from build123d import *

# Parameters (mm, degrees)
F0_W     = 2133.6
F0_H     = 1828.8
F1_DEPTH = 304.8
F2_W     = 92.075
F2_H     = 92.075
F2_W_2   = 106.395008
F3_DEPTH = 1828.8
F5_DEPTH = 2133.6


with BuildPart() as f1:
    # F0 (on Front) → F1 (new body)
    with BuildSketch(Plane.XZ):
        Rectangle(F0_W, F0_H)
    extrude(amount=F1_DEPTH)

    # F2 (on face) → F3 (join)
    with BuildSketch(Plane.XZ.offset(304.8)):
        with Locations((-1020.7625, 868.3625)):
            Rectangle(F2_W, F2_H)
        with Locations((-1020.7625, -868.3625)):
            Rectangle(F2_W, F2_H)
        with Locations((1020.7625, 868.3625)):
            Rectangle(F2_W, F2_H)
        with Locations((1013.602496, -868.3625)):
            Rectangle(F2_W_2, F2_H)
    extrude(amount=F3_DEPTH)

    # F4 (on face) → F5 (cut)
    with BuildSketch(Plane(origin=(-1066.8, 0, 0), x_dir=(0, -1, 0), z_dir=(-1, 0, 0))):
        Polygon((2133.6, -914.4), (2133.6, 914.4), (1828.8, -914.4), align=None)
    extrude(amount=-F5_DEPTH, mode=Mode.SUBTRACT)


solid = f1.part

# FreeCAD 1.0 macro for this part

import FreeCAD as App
import Part
import Sketcher
Q = App.Units.Quantity

doc = App.newDocument("Part")
body = doc.addObject("PartDesign::Body", "Body")

# Sketch on XZ plane
sketch1 = doc.addObject("Sketcher::SketchObject", "Sketch")
body.addObject(sketch1)
sketch1.AttachmentSupport = (doc.XZ_Plane, [""])
sketch1.MapMode = "FlatFace"
sketch1.addGeometry(Part.LineSegment(App.Vector(-1067, 914, 0), App.Vector(-1067, -914, 0)), False)
sketch1.addGeometry(Part.LineSegment(App.Vector(-1067, -914, 0), App.Vector(1067, -914, 0)), False)
sketch1.addGeometry(Part.LineSegment(App.Vector(1067, -914, 0), App.Vector(1067, 914, 0)), False)
sketch1.addGeometry(Part.LineSegment(App.Vector(1067, 914, 0), App.Vector(-1067, 914, 0)), False)
sketch1.addConstraint(Sketcher.Constraint("Coincident", 0, 2, 1, 1))
sketch1.addConstraint(Sketcher.Constraint("Coincident", 1, 2, 2, 1))
sketch1.addConstraint(Sketcher.Constraint("Coincident", 2, 2, 3, 1))
sketch1.addConstraint(Sketcher.Constraint("Coincident", 3, 2, 0, 1))
sketch1.addConstraint(Sketcher.Constraint("Vertical", 0))
sketch1.addConstraint(Sketcher.Constraint("Horizontal", 1))
sketch1.addConstraint(Sketcher.Constraint("Vertical", 2))
sketch1.addConstraint(Sketcher.Constraint("Horizontal", 3))
sketch1.addConstraint(Sketcher.Constraint("Symmetric", 0, 2, 2, 2, -1, 1))
sketch1.addConstraint(Sketcher.Constraint("DistanceX", 1, 1, 1, 2, Q("84 in")))
sketch1.addConstraint(Sketcher.Constraint("DistanceY", 0, 2, 0, 1, Q("72 in")))
pad1 = doc.addObject("PartDesign::Pad", "Pad")
body.addObject(pad1)
pad1.Profile = sketch1
pad1.Length = Q("12 in")

# Sketch on XZ plane
sketch2 = doc.addObject("Sketcher::SketchObject", "Sketch001")
body.addObject(sketch2)
sketch2.AttachmentSupport = (doc.XZ_Plane, [""])
sketch2.MapMode = "FlatFace"
sketch2.AttachmentOffset = App.Placement(App.Vector(0, 0, 12 * 25.4), App.Rotation())
sketch2.addGeometry(Part.LineSegment(App.Vector(-1067, 914, 0), App.Vector(-1067, 822, 0)), False)
sketch2.addGeometry(Part.LineSegment(App.Vector(-1067, 822, 0), App.Vector(-975, 822, 0)), False)
sketch2.addGeometry(Part.LineSegment(App.Vector(-975, 822, 0), App.Vector(-975, 914, 0)), False)
sketch2.addGeometry(Part.LineSegment(App.Vector(-975, 914, 0), App.Vector(-1067, 914, 0)), False)
sketch2.addGeometry(Part.LineSegment(App.Vector(-1067, -822, 0), App.Vector(-1067, -914, 0)), False)
sketch2.addGeometry(Part.LineSegment(App.Vector(-1067, -914, 0), App.Vector(-975, -914, 0)), False)
sketch2.addGeometry(Part.LineSegment(App.Vector(-975, -914, 0), App.Vector(-975, -822, 0)), False)
sketch2.addGeometry(Part.LineSegment(App.Vector(-975, -822, 0), App.Vector(-1067, -822, 0)), False)
sketch2.addGeometry(Part.LineSegment(App.Vector(975, 914, 0), App.Vector(975, 822, 0)), False)
sketch2.addGeometry(Part.LineSegment(App.Vector(975, 822, 0), App.Vector(1067, 822, 0)), False)
sketch2.addGeometry(Part.LineSegment(App.Vector(1067, 822, 0), App.Vector(1067, 914, 0)), False)
sketch2.addGeometry(Part.LineSegment(App.Vector(1067, 914, 0), App.Vector(975, 914, 0)), False)
sketch2.addGeometry(Part.LineSegment(App.Vector(960, -822, 0), App.Vector(960, -914, 0)), False)
sketch2.addGeometry(Part.LineSegment(App.Vector(960, -914, 0), App.Vector(1067, -914, 0)), False)
sketch2.addGeometry(Part.LineSegment(App.Vector(1067, -914, 0), App.Vector(1067, -822, 0)), False)
sketch2.addGeometry(Part.LineSegment(App.Vector(1067, -822, 0), App.Vector(960, -822, 0)), False)
sketch2.addConstraint(Sketcher.Constraint("Coincident", 0, 2, 1, 1))
sketch2.addConstraint(Sketcher.Constraint("Coincident", 1, 2, 2, 1))
sketch2.addConstraint(Sketcher.Constraint("Coincident", 2, 2, 3, 1))
sketch2.addConstraint(Sketcher.Constraint("Coincident", 3, 2, 0, 1))
sketch2.addConstraint(Sketcher.Constraint("Coincident", 4, 2, 5, 1))
sketch2.addConstraint(Sketcher.Constraint("Coincident", 5, 2, 6, 1))
sketch2.addConstraint(Sketcher.Constraint("Coincident", 6, 2, 7, 1))
sketch2.addConstraint(Sketcher.Constraint("Coincident", 7, 2, 4, 1))
sketch2.addConstraint(Sketcher.Constraint("Coincident", 8, 2, 9, 1))
sketch2.addConstraint(Sketcher.Constraint("Coincident", 9, 2, 10, 1))
sketch2.addConstraint(Sketcher.Constraint("Coincident", 10, 2, 11, 1))
sketch2.addConstraint(Sketcher.Constraint("Coincident", 11, 2, 8, 1))
sketch2.addConstraint(Sketcher.Constraint("Coincident", 12, 2, 13, 1))
sketch2.addConstraint(Sketcher.Constraint("Coincident", 13, 2, 14, 1))
sketch2.addConstraint(Sketcher.Constraint("Coincident", 14, 2, 15, 1))
sketch2.addConstraint(Sketcher.Constraint("Coincident", 15, 2, 12, 1))
sketch2.addConstraint(Sketcher.Constraint("Vertical", 0))
sketch2.addConstraint(Sketcher.Constraint("Horizontal", 1))
sketch2.addConstraint(Sketcher.Constraint("Vertical", 2))
sketch2.addConstraint(Sketcher.Constraint("Horizontal", 3))
sketch2.addConstraint(Sketcher.Constraint("Vertical", 4))
sketch2.addConstraint(Sketcher.Constraint("Horizontal", 5))
sketch2.addConstraint(Sketcher.Constraint("Vertical", 6))
sketch2.addConstraint(Sketcher.Constraint("Horizontal", 7))
sketch2.addConstraint(Sketcher.Constraint("Vertical", 8))
sketch2.addConstraint(Sketcher.Constraint("Horizontal", 9))
sketch2.addConstraint(Sketcher.Constraint("Vertical", 10))
sketch2.addConstraint(Sketcher.Constraint("Horizontal", 11))
sketch2.addConstraint(Sketcher.Constraint("Vertical", 12))
sketch2.addConstraint(Sketcher.Constraint("Horizontal", 13))
sketch2.addConstraint(Sketcher.Constraint("Vertical", 14))
sketch2.addConstraint(Sketcher.Constraint("Horizontal", 15))
sketch2.addConstraint(Sketcher.Constraint("Symmetric", 6, 2, 8, 2, -1, 1))
sketch2.addConstraint(Sketcher.Constraint("Symmetric", 4, 2, 10, 2, -1, 1))
sketch2.addConstraint(Sketcher.Constraint("Symmetric", 3, 2, 13, 2, -1, 1))
sketch2.addConstraint(Sketcher.Constraint("Symmetric", 1, 2, 8, 2, -2))
sketch2.addConstraint(Sketcher.Constraint("Symmetric", 3, 2, 10, 2, -2))
sketch2.addConstraint(Sketcher.Constraint("Horizontal", 7, 2, 14, 2))
sketch2.addConstraint(Sketcher.Constraint("Equal", 11, 0))
sketch2.addConstraint(Sketcher.Constraint("DistanceX", 0, 2, -1, 1, Q("42 in")))
sketch2.addConstraint(Sketcher.Constraint("DistanceY", -1, 1, 2, 2, Q("36 in")))
sketch2.addConstraint(Sketcher.Constraint("DistanceX", 1, 1, 1, 2, Q("3.625 in")))
sketch2.addConstraint(Sketcher.Constraint("DistanceX", 13, 1, 13, 2, Q("106.395008 mm")))
pad2 = doc.addObject("PartDesign::Pad", "Pad001")
body.addObject(pad2)
pad2.Profile = sketch2
pad2.Length = Q("72 in")

# Sketch on YZ plane
sketch3 = doc.addObject("Sketcher::SketchObject", "Sketch002")
body.addObject(sketch3)
sketch3.AttachmentSupport = (doc.YZ_Plane, [""])
sketch3.MapMode = "FlatFace"
sketch3.AttachmentOffset = App.Placement(App.Vector(0, 0, -42 * 25.4), App.Rotation())
sketch3.addGeometry(Part.LineSegment(App.Vector(-2134, -914, 0), App.Vector(-2134, 914, 0)), False)
sketch3.addGeometry(Part.LineSegment(App.Vector(-2134, 914, 0), App.Vector(-1829, -914, 0)), False)
sketch3.addGeometry(Part.LineSegment(App.Vector(-1829, -914, 0), App.Vector(-2134, -914, 0)), False)
sketch3.addConstraint(Sketcher.Constraint("Coincident", 0, 2, 1, 1))
sketch3.addConstraint(Sketcher.Constraint("Coincident", 1, 2, 2, 1))
sketch3.addConstraint(Sketcher.Constraint("Coincident", 2, 2, 0, 1))
sketch3.addConstraint(Sketcher.Constraint("Vertical", 0))
sketch3.addConstraint(Sketcher.Constraint("Horizontal", 2))
sketch3.addConstraint(Sketcher.Constraint("DistanceX", 2, 2, 2, 1, Q("12 in")))
sketch3.addConstraint(Sketcher.Constraint("DistanceY", 0, 1, 0, 2, Q("72 in")))
sketch3.addConstraint(Sketcher.Constraint("DistanceX", 0, 2, -1, 1, Q("84 in")))
sketch3.addConstraint(Sketcher.Constraint("DistanceY", -1, 1, 0, 2, Q("36 in")))
pocket1 = doc.addObject("PartDesign::Pocket", "Pocket")
body.addObject(pocket1)
pocket1.Profile = sketch3
pocket1.Length = Q("84 in")
pocket1.Reversed = True

doc.recompute()
